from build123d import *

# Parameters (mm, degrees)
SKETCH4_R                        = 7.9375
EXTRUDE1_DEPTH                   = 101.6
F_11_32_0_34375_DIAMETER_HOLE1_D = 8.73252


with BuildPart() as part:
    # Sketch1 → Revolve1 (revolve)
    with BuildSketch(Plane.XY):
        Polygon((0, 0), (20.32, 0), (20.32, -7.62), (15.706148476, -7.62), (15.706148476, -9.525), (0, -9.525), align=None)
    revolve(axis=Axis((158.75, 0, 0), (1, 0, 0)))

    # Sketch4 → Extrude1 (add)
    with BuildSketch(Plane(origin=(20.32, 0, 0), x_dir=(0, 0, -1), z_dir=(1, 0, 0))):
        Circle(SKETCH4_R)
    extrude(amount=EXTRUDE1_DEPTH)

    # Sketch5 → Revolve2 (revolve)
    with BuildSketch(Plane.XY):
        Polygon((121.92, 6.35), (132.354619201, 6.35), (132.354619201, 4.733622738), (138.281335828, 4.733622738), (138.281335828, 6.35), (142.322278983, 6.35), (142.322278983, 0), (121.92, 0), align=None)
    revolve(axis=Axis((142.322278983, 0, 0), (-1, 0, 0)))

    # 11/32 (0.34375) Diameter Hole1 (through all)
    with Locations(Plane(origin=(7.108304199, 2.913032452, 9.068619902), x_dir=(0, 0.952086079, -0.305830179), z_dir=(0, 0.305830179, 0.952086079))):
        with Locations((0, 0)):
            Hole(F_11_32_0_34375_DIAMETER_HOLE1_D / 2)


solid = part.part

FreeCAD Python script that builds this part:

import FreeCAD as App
import Part
import Sketcher
from FreeCAD import Vector
Q = App.Units.Quantity

doc = App.newDocument("Part")
body = doc.addObject("PartDesign::Body", "Body")

# Sketch on XY plane
sketch1 = body.newObject("Sketcher::SketchObject", "Sketch")
sketch1.AttachmentSupport = (doc.getObject("XY_Plane"), [""])
sketch1.MapMode = "FlatFace"
sketch1.addGeometry([
    Part.LineSegment(Vector(20.3, 0, 0), Vector(0, 0, 0)),  # 0
    Part.LineSegment(Vector(0, 0, 0), Vector(0, -9.5, 0)),  # 1
    Part.LineSegment(Vector(0, -9.5, 0), Vector(15.7, -9.5, 0)),  # 2
    Part.LineSegment(Vector(15.7, -9.5, 0), Vector(15.7, -7.6, 0)),  # 3
    Part.LineSegment(Vector(15.7, -7.6, 0), Vector(20.3, -7.6, 0)),  # 4
    Part.LineSegment(Vector(20.3, -7.6, 0), Vector(20.3, 0, 0)),  # 5
], False)
sketch1.addConstraint([
    Sketcher.Constraint("Coincident", 0, 2, 1, 1),
    Sketcher.Constraint("Coincident", 1, 2, 2, 1),
    Sketcher.Constraint("Coincident", 2, 2, 3, 1),
    Sketcher.Constraint("Coincident", 3, 2, 4, 1),
    Sketcher.Constraint("Coincident", 4, 2, 5, 1),
    Sketcher.Constraint("Coincident", 5, 2, 0, 1),
    Sketcher.Constraint("Horizontal", 0),
    Sketcher.Constraint("Vertical", 1),
    Sketcher.Constraint("Horizontal", 2),
    Sketcher.Constraint("Vertical", 3),
    Sketcher.Constraint("Horizontal", 4),
    Sketcher.Constraint("Vertical", 5),
    Sketcher.Constraint("Coincident", 0, 2, -1, 1),
    Sketcher.Constraint("DistanceX", 0, 2, 0, 1, Q("0.8 in")),
    Sketcher.Constraint("DistanceY", 5, 1, 5, 2, Q("0.3 in")),
    Sketcher.Constraint("DistanceY", 1, 2, 1, 1, Q("0.375 in")),
    Sketcher.Constraint("DistanceX", 2, 1, 2, 2, 15.706148),
])
revolution = body.newObject("PartDesign::Revolution", "Revolution")
revolution.Profile = sketch1
revolution.ReferenceAxis = (sketch1, ["H_Axis"])
revolution.Angle = 360

# Sketch on YZ plane
sketch2 = body.newObject("Sketcher::SketchObject", "Sketch001")
sketch2.AttachmentSupport = (doc.getObject("YZ_Plane"), [""])
sketch2.MapMode = "FlatFace"
sketch2.AttachmentOffset = App.Placement(Vector(0, 0, 0.8 * 25.4), App.Rotation())
sketch2.addGeometry(Part.Circle(Vector(0, 0, 0), Vector(0, 0, 1), 8), False)
sketch2.addConstraint([
    Sketcher.Constraint("Coincident", 0, 3, -1, 1),
    Sketcher.Constraint("Diameter", 0, Q("0.625 in")),
])
pad1 = body.newObject("PartDesign::Pad", "Pad")
pad1.Profile = sketch2
pad1.Length = Q("4 in")

# Sketch on XY plane
sketch3 = body.newObject("Sketcher::SketchObject", "Sketch002")
sketch3.AttachmentSupport = (doc.getObject("XY_Plane"), [""])
sketch3.MapMode = "FlatFace"
sketch3.addGeometry([
    Part.LineSegment(Vector(132.4, 6.3, 0), Vector(121.9, 6.3, 0)),  # 0
    Part.LineSegment(Vector(121.9, 6.3, 0), Vector(121.9, 0, 0)),  # 1
    Part.LineSegment(Vector(121.9, 0, 0), Vector(142.3, 0, 0)),  # 2
    Part.LineSegment(Vector(142.3, 0, 0), Vector(142.3, 6.3, 0)),  # 3
    Part.LineSegment(Vector(142.3, 6.3, 0), Vector(138.3, 6.3, 0)),  # 4
    Part.LineSegment(Vector(138.3, 6.3, 0), Vector(138.3, 4.7, 0)),  # 5
    Part.LineSegment(Vector(138.3, 4.7, 0), Vector(132.4, 4.7, 0)),  # 6
    Part.LineSegment(Vector(132.4, 4.7, 0), Vector(132.4, 6.3, 0)),  # 7
], False)
sketch3.addConstraint([
    Sketcher.Constraint("Coincident", 0, 2, 1, 1),
    Sketcher.Constraint("Coincident", 1, 2, 2, 1),
    Sketcher.Constraint("Coincident", 2, 2, 3, 1),
    Sketcher.Constraint("Coincident", 3, 2, 4, 1),
    Sketcher.Constraint("Coincident", 4, 2, 5, 1),
    Sketcher.Constraint("Coincident", 5, 2, 6, 1),
    Sketcher.Constraint("Coincident", 6, 2, 7, 1),
    Sketcher.Constraint("Coincident", 7, 2, 0, 1),
    Sketcher.Constraint("Horizontal", 0),
    Sketcher.Constraint("Vertical", 1),
    Sketcher.Constraint("Horizontal", 2),
    Sketcher.Constraint("Vertical", 3),
    Sketcher.Constraint("Horizontal", 4),
    Sketcher.Constraint("Vertical", 5),
    Sketcher.Constraint("Horizontal", 6),
    Sketcher.Constraint("Vertical", 7),
    Sketcher.Constraint("PointOnObject", 1, 2, -1),
    Sketcher.Constraint("Horizontal", 0, 2, 3, 2),
    Sketcher.Constraint("DistanceY", 1, 2, 1, 1, Q("0.25 in")),
    Sketcher.Constraint("DistanceX", -1, 1, 0, 2, Q("4.8 in")),
    Sketcher.Constraint("DistanceX", 0, 2, 0, 1, 10.434619),
    Sketcher.Constraint("DistanceX", 2, 1, 2, 2, 20.402279),
    Sketcher.Constraint("DistanceX", 4, 2, 4, 1, 4.040943),
    Sketcher.Constraint("DistanceY", 5, 2, 5, 1, 1.616377),
])
revolution2 = body.newObject("PartDesign::Revolution", "Revolution001")
revolution2.Profile = sketch3
revolution2.ReferenceAxis = (sketch3, ["H_Axis"])
revolution2.Angle = 360

# Sketch on an angled plane
sketch4 = body.newObject("Sketcher::SketchObject", "Sketch003")
sketch4.Placement = App.Placement(Vector(0, 2.913032, 9.06862), App.Rotation(Vector(0, 0.952086079, -0.305830179), Vector(-1, 0, 0), Vector(0, 0.305830179, 0.952086079), "ZXY"))
sketch4.addGeometry(Part.Circle(Vector(0, -7.1, 0), Vector(0, 0, 1), 4.4), False)
sketch4.addConstraint([
    Sketcher.Constraint("PointOnObject", 0, 3, -2),
    Sketcher.Constraint("Diameter", 0, Q("0.3438 in")),
    Sketcher.Constraint("DistanceY", 0, 3, -1, 1, 7.108304),
])
doc.recompute()
hole = body.newObject("PartDesign::Hole", "Hole")
hole.Profile = sketch4
hole.ThreadType = "None"
hole.Diameter = Q("0.3438 in")
hole.DepthType = "ThroughAll"

doc.recompute()
